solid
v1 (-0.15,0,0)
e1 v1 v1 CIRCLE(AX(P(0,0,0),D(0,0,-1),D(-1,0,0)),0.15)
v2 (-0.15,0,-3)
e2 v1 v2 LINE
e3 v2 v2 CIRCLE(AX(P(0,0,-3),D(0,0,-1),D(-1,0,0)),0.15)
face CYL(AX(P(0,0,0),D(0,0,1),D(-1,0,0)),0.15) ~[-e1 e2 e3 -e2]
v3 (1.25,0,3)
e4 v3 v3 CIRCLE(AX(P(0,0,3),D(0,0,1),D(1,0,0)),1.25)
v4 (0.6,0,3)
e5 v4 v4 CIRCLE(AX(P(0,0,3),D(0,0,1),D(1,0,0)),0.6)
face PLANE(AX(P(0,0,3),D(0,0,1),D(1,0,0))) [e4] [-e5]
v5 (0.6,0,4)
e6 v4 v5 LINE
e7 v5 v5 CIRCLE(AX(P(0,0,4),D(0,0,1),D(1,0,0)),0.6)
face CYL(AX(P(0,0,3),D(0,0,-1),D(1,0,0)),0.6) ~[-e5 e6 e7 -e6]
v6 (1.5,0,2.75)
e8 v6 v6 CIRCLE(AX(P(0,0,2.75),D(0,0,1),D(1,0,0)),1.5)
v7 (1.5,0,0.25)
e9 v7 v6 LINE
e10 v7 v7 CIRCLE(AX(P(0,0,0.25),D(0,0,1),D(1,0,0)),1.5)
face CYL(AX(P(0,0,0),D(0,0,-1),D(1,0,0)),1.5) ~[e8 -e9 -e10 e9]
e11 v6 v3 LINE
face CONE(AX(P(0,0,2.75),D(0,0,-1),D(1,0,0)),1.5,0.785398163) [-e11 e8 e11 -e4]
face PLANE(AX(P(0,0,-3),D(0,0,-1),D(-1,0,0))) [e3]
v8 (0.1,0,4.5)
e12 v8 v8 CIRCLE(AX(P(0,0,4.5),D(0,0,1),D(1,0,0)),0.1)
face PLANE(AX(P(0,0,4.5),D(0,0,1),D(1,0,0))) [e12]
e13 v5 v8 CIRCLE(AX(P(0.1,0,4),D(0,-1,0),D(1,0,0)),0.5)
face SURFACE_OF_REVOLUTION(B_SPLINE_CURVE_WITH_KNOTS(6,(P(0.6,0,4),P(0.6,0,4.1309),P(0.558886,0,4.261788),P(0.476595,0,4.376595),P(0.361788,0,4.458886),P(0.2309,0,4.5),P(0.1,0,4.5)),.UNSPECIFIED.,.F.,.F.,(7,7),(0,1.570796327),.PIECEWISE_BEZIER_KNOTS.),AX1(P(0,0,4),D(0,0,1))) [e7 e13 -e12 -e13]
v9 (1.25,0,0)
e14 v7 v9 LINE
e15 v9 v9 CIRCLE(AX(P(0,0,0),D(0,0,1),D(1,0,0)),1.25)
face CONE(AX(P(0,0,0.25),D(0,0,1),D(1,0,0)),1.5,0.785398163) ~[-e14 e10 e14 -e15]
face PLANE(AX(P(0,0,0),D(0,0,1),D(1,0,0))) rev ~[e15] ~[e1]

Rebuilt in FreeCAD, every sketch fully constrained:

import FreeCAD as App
import Part
import Sketcher
Q = App.Units.Quantity


def edges_at(feature, points):
    """Names of the edges that pass closest to the given points."""
    edges = feature.Shape.Edges
    near = lambda p: min(range(len(edges)), key=lambda i: edges[i].distToShape(Part.Vertex(*p))[0])
    return sorted({f"Edge{near(p) + 1}" for p in points})

doc = App.newDocument("Part")
body = doc.addObject("PartDesign::Body", "Body")

# Sketch on XY plane
sketch1 = body.newObject("Sketcher::SketchObject", "Sketch")
sketch1.AttachmentSupport = (doc.getObject("XY_Plane"), [""])
sketch1.MapMode = "FlatFace"
sketch1.addGeometry(Part.Circle(App.Vector(0, 0, 0), App.Vector(0, 0, 1), 1.5), False)
sketch1.addConstraint(Sketcher.Constraint("Coincident", 0, 3, -1, 1))
sketch1.addConstraint(Sketcher.Constraint("Diameter", 0, Q("3 mm")))
pad1 = body.newObject("PartDesign::Pad", "Pad")
pad1.Profile = sketch1
pad1.Length = 3
doc.recompute()

chamfer = body.newObject("PartDesign::Chamfer", "Chamfer")
chamfer.Base = (pad1, edges_at(pad1, [(-1.5, 0, 3), (-1.5, 0, 0)]))
chamfer.Size = 0.25

# Sketch on XY plane
sketch2 = body.newObject("Sketcher::SketchObject", "Sketch001")
sketch2.AttachmentSupport = (doc.getObject("XY_Plane"), [""])
sketch2.MapMode = "FlatFace"
sketch2.AttachmentOffset = App.Placement(App.Vector(0, 0, 3), App.Rotation())
sketch2.addGeometry(Part.Circle(App.Vector(0, 0, 0), App.Vector(0, 0, 1), 0.6), False)
sketch2.addConstraint(Sketcher.Constraint("Coincident", 0, 3, -1, 1))
sketch2.addConstraint(Sketcher.Constraint("Diameter", 0, Q("1.2 mm")))
pad2 = body.newObject("PartDesign::Pad", "Pad001")
pad2.Profile = sketch2
pad2.Length = 1.5
doc.recompute()

fillet = body.newObject("PartDesign::Fillet", "Fillet")
fillet.Base = (pad2, edges_at(pad2, [(-0.6, 0, 4.5)]))
fillet.Radius = 0.5

# Sketch on XY plane
sketch3 = body.newObject("Sketcher::SketchObject", "Sketch002")
sketch3.AttachmentSupport = (doc.getObject("XY_Plane"), [""])
sketch3.MapMode = "FlatFace"
sketch3.addGeometry(Part.Circle(App.Vector(0, 0, 0), App.Vector(0, 0, 1), 0.15), False)
sketch3.addConstraint(Sketcher.Constraint("Coincident", 0, 3, -1, 1))
sketch3.addConstraint(Sketcher.Constraint("Diameter", 0, Q("0.3 mm")))
pad3 = body.newObject("PartDesign::Pad", "Pad002")
pad3.Profile = sketch3
pad3.Length = 3
pad3.Reversed = True

doc.recompute()
